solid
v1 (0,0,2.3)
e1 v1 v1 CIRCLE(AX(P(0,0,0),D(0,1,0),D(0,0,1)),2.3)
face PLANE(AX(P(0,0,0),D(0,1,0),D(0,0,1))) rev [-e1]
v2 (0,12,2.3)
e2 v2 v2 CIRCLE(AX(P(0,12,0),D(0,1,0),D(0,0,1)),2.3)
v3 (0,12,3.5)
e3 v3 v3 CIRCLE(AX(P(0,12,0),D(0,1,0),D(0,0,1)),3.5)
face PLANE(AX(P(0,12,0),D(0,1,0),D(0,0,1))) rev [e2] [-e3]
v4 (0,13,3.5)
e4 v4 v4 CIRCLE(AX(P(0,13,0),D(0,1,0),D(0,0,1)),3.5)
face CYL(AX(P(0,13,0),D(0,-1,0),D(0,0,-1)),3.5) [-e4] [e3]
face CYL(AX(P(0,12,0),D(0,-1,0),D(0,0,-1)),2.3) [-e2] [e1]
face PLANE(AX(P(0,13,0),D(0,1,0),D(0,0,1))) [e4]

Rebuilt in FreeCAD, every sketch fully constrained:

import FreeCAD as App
import Part
import Sketcher

V = App.Vector
Q = App.Units.Quantity

doc = App.newDocument("Part")
body = doc.addObject("PartDesign::Body", "Body")

sketch1 = doc.addObject("Sketcher::SketchObject", "Sketch")
body.addObject(sketch1)
sketch1.AttachmentSupport = (doc.XZ_Plane, [""])
sketch1.MapMode = "FlatFace"
sketch1.addGeometry(Part.Circle(V(0, 0, 0), V(0, 0, 1), 2.3), False)
sketch1.addConstraint([
    Sketcher.Constraint("Coincident", 0, 3, -1, 1),
    Sketcher.Constraint("Diameter", 0, Q("4.6 mm")),
])
pad1 = doc.addObject("PartDesign::Pad", "Pad")
body.addObject(pad1)
pad1.Profile = sketch1
pad1.Length = 12
pad1.Reversed = True

sketch2 = doc.addObject("Sketcher::SketchObject", "Sketch001")
body.addObject(sketch2)
sketch2.AttachmentSupport = (doc.XZ_Plane, [""])
sketch2.MapMode = "FlatFace"
sketch2.AttachmentOffset = App.Placement(V(0, 0, -12), App.Rotation())
sketch2.addGeometry(Part.Circle(V(0, 0, 0), V(0, 0, 1), 3.5), False)
sketch2.addConstraint([
    Sketcher.Constraint("Coincident", 0, 3, -1, 1),
    Sketcher.Constraint("Diameter", 0, Q("7 mm")),
])
pad2 = doc.addObject("PartDesign::Pad", "Pad001")
body.addObject(pad2)
pad2.Profile = sketch2
pad2.Length = 1
pad2.Reversed = True

doc.recompute()
